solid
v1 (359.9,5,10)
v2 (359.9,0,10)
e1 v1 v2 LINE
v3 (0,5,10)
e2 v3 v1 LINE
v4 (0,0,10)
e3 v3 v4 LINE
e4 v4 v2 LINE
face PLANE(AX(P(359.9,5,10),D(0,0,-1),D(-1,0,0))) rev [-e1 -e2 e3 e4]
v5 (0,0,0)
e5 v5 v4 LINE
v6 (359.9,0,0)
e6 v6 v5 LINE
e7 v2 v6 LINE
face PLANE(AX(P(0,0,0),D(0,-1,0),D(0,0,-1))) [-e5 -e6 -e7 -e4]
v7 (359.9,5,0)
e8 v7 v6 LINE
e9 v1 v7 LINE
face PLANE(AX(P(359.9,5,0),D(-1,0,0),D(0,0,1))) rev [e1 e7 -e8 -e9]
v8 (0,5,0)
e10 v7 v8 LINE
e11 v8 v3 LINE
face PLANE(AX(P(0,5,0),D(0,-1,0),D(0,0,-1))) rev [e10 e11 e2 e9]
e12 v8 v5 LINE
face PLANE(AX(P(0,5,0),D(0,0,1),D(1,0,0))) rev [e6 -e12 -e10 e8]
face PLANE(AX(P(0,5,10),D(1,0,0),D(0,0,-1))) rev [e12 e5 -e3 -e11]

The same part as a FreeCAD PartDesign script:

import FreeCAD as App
import Part
import Sketcher
from FreeCAD import Vector
Q = App.Units.Quantity


def add_polygon(sketch, points):
    """Adds a closed chain of lines whose ends are joined by coincident constraints."""
    first, n = sketch.GeometryCount, len(points)
    for a, b in zip(points, points[1:] + points[:1]):
        sketch.addGeometry(Part.LineSegment(App.Vector(*a, 0), App.Vector(*b, 0)), False)
    for i in range(n):
        sketch.addConstraint(Sketcher.Constraint("Coincident", first + i, 2, first + (i + 1) % n, 1))

doc = App.newDocument("Part")
body = doc.addObject("PartDesign::Body", "Body")

sketch1 = doc.addObject("Sketcher::SketchObject", "Sketch")
body.addObject(sketch1)
sketch1.AttachmentSupport = (doc.XZ_Plane, [""])
sketch1.MapMode = "FlatFace"
add_polygon(sketch1, [(0, 0), (0, 10), (359.9, 10), (359.9, 0)])
sketch1.addConstraint([
    Sketcher.Constraint("Vertical", 0),
    Sketcher.Constraint("Horizontal", 1),
    Sketcher.Constraint("Vertical", 2),
    Sketcher.Constraint("Horizontal", 3),
    Sketcher.Constraint("Coincident", 3, 2, -1, 1),
    Sketcher.Constraint("DistanceY", 0, 1, 0, 2, Q("10 mm")),
    Sketcher.Constraint("DistanceX", 1, 1, 1, 2, Q("359.9 mm")),
])
pad1 = doc.addObject("PartDesign::Pad", "Pad")
body.addObject(pad1)
pad1.Profile = sketch1
pad1.Length = 5
pad1.Reversed = True

doc.recompute()
